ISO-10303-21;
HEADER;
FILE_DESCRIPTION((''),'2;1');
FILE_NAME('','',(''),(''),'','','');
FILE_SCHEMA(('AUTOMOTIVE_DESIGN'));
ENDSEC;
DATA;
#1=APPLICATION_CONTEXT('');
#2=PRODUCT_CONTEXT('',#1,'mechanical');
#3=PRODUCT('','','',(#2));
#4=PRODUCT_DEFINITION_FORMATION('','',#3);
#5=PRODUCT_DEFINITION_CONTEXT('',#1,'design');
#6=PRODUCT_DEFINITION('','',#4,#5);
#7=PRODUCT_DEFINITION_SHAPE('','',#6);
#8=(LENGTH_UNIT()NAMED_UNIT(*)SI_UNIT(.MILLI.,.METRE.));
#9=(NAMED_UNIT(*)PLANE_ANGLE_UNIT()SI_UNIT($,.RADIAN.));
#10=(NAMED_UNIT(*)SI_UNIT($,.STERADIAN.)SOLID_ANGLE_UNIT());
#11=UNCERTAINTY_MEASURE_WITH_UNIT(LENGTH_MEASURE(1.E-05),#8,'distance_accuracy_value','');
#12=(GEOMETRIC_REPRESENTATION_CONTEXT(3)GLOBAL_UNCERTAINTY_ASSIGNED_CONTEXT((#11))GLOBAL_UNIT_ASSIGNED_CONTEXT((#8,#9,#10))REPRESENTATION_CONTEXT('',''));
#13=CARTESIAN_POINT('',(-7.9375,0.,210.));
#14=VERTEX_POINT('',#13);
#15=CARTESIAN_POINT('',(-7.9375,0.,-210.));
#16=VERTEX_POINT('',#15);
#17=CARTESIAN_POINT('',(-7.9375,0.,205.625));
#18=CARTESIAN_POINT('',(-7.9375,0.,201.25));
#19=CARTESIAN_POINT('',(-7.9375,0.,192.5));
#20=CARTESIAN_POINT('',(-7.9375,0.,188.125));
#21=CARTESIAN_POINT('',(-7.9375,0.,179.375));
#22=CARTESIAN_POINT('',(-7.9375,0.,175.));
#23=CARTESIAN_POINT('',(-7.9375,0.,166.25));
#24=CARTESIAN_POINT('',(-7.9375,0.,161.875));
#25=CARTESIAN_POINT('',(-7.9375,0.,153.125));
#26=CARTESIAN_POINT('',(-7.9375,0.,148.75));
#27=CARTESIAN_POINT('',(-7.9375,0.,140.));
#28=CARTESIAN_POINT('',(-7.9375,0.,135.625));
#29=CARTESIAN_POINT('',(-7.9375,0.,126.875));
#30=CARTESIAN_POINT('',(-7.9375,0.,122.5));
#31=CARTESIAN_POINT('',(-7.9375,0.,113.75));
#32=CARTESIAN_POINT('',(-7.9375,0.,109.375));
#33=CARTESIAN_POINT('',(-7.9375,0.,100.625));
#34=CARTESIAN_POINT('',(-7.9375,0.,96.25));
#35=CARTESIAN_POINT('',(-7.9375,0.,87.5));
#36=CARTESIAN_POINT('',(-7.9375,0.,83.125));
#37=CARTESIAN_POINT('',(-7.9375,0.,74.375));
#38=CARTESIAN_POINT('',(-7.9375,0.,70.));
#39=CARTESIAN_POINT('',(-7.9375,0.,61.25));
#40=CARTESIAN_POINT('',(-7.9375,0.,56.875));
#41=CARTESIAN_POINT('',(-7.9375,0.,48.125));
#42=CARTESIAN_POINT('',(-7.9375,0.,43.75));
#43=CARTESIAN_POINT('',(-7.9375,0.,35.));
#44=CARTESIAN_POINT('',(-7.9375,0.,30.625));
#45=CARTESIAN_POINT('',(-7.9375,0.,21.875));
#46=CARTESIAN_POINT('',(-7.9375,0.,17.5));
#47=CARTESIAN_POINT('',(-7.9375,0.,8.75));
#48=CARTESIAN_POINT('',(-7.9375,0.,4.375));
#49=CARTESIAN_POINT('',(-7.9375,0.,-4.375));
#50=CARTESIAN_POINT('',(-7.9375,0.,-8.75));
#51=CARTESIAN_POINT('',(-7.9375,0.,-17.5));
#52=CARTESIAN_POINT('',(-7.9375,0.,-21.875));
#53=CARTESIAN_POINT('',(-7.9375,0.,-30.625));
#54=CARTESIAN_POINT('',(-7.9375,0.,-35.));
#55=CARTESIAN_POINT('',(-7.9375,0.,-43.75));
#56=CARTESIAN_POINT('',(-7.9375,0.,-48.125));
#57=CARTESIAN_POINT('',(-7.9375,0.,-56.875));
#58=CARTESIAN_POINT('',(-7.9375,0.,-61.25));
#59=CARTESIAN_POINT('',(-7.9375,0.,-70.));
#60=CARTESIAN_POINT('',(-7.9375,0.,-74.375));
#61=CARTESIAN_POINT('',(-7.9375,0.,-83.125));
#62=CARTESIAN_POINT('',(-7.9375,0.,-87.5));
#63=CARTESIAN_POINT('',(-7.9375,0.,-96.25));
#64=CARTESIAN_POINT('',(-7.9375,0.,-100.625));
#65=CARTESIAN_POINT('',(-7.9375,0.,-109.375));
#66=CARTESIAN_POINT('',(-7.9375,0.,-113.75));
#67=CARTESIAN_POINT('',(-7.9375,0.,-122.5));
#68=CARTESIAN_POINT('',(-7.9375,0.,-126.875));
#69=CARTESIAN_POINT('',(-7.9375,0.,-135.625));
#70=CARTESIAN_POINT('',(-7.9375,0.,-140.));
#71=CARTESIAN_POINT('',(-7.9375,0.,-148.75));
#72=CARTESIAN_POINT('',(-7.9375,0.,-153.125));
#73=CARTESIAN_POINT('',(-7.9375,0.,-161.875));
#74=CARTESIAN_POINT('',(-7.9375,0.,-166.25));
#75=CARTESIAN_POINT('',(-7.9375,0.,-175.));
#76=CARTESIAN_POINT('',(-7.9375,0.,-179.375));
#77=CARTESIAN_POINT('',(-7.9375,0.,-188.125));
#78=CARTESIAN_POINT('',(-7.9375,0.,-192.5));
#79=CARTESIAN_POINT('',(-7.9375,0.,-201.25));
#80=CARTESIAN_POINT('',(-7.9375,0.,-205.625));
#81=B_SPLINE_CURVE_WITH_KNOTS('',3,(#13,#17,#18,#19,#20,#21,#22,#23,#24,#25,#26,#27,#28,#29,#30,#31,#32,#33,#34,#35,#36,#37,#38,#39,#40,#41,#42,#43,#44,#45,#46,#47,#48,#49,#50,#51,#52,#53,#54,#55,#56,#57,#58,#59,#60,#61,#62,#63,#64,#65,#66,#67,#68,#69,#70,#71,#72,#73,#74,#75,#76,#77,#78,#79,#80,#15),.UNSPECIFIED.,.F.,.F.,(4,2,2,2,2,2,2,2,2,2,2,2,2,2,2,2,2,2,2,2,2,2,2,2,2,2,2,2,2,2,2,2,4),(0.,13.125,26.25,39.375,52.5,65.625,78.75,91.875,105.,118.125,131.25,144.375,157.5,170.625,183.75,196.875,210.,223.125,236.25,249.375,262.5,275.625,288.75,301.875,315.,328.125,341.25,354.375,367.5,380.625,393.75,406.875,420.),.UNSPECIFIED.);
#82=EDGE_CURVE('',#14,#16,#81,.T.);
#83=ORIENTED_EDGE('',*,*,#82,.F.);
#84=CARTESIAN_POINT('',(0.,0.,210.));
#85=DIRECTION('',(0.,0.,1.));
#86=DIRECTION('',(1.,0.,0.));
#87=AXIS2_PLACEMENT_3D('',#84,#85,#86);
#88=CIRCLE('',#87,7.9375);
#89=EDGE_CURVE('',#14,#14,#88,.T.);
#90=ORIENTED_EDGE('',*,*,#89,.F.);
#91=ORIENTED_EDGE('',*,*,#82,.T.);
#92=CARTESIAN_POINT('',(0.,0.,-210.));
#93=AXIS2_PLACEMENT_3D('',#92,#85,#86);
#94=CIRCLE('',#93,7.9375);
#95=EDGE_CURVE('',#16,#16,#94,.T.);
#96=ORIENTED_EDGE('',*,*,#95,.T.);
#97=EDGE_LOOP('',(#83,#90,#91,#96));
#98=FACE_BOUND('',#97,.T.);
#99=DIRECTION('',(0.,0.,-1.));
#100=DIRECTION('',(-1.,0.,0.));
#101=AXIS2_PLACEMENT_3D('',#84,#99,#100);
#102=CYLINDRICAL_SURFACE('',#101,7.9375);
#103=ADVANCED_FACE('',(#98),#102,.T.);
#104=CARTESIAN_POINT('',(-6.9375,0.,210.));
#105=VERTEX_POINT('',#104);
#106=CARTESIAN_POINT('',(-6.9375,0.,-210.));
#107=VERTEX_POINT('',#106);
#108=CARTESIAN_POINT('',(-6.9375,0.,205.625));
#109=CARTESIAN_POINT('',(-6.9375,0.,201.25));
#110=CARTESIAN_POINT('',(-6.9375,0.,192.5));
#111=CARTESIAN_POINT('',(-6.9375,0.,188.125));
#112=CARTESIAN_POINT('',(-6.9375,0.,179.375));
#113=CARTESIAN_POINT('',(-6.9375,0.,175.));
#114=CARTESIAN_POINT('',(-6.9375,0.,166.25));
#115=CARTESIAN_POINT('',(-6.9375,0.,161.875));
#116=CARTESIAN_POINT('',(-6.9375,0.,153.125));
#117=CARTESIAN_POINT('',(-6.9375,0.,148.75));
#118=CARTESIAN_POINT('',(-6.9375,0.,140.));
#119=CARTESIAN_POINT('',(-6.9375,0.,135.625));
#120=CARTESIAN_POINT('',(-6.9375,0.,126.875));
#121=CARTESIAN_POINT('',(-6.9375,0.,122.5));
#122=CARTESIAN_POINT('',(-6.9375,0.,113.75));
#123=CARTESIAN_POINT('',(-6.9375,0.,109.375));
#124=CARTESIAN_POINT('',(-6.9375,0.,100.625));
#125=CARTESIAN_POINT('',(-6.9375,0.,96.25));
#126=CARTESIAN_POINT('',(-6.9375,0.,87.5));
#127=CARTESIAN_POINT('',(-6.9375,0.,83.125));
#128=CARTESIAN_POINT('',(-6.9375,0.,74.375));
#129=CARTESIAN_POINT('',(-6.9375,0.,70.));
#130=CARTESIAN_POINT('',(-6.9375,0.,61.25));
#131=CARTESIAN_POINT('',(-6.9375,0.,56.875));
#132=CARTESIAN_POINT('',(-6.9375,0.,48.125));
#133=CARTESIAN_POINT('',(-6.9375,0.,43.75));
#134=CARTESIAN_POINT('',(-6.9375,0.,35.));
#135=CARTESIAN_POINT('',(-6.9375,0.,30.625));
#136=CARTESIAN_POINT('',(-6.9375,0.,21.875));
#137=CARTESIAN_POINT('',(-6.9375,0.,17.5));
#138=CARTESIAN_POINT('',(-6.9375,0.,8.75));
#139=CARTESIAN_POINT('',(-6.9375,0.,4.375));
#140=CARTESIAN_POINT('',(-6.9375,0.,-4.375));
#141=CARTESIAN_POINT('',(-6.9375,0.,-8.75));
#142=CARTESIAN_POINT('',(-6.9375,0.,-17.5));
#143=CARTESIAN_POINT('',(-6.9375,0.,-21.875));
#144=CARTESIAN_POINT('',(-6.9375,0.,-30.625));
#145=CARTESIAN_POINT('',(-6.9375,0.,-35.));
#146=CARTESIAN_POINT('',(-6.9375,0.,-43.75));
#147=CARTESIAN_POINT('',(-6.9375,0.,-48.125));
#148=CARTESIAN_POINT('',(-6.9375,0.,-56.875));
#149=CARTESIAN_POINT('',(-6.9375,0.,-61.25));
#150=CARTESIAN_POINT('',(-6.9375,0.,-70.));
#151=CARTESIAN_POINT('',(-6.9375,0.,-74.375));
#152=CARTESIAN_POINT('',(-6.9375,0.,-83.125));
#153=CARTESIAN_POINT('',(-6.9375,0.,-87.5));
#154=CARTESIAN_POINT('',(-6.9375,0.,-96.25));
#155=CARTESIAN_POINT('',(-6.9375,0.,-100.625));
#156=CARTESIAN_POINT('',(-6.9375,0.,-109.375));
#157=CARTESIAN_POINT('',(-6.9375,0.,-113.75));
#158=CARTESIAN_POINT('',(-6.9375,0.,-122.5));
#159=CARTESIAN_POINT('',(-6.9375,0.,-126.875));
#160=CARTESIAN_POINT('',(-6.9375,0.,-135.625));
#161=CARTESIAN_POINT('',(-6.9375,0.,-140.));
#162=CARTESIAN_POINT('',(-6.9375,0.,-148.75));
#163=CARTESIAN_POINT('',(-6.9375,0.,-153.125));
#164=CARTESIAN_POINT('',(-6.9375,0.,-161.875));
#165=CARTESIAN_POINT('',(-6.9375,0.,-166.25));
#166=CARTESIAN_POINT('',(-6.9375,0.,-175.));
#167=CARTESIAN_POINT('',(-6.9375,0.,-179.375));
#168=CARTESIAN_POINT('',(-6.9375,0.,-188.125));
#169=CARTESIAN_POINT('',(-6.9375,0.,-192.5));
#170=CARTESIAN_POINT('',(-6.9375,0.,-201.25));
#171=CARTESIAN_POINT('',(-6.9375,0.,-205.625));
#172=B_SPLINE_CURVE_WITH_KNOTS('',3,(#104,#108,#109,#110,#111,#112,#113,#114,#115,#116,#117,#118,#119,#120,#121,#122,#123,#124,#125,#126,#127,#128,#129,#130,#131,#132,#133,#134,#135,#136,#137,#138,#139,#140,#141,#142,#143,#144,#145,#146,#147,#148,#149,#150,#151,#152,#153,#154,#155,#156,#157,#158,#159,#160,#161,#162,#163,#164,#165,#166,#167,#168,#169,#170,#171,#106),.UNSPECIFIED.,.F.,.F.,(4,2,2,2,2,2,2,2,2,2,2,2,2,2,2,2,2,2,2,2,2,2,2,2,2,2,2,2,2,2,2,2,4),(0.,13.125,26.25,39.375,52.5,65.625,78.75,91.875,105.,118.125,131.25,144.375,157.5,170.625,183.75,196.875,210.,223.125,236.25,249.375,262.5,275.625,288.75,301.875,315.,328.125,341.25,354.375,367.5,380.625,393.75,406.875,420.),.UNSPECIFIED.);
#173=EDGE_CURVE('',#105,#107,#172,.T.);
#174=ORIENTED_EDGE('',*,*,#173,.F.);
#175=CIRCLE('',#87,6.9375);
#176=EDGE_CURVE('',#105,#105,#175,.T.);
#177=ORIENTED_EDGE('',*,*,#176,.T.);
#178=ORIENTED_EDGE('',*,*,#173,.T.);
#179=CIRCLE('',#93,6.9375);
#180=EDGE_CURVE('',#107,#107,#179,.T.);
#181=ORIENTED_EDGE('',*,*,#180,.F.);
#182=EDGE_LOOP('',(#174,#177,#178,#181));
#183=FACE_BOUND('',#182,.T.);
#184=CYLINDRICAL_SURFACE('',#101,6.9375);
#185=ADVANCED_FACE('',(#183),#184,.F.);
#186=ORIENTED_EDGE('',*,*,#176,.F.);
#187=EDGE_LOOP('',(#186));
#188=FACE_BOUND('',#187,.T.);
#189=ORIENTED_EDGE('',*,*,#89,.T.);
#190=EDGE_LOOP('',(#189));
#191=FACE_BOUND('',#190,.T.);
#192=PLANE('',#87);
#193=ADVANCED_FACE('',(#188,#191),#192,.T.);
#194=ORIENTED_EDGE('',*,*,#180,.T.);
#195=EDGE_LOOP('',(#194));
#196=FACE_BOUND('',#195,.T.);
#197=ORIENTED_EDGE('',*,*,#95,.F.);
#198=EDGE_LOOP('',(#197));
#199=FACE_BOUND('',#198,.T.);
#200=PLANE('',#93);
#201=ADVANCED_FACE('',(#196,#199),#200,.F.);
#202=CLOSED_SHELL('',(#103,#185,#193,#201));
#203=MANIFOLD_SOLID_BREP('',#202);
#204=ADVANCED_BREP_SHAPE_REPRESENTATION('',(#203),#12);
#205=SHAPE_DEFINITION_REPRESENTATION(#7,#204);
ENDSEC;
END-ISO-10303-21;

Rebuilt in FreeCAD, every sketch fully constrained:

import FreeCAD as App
import Part
import Sketcher

doc = App.newDocument("Part")
body = doc.addObject("PartDesign::Body", "Body")

# Sketch on XY plane
sketch1 = doc.addObject("Sketcher::SketchObject", "Sketch")
body.addObject(sketch1)
sketch1.AttachmentSupport = (doc.XY_Plane, [""])
sketch1.MapMode = "FlatFace"
sketch1.addGeometry([
    Part.Circle(App.Vector(0, 0, 0), App.Vector(0, 0, 1), 7.9375),
    Part.Circle(App.Vector(0, 0, 0), App.Vector(0, 0, 1), 6.9375),
], False)
sketch1.addConstraint([
    Sketcher.Constraint("Coincident", 0, 3, -1, 1),
    Sketcher.Constraint("Coincident", 1, 3, -1, 1),
    Sketcher.Constraint("Diameter", 0, 15.875),
    Sketcher.Constraint("Diameter", 1, 13.875),
])
pad1 = doc.addObject("PartDesign::Pad", "Pad")
body.addObject(pad1)
pad1.Profile = sketch1
pad1.Length = 420
pad1.Midplane = True

doc.recompute()
